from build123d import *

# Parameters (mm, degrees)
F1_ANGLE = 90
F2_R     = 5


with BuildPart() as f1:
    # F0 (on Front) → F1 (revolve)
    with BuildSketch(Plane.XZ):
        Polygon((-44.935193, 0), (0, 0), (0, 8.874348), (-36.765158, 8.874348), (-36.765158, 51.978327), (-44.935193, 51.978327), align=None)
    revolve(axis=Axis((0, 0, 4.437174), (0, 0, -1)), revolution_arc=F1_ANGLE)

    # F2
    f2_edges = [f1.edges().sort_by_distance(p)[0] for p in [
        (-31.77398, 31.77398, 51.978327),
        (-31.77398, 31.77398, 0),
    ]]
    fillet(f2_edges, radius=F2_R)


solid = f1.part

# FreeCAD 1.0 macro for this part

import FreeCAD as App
import Part
import Sketcher


def edges_at(feature, points):
    """Names of the edges that pass closest to the given points."""
    edges = feature.Shape.Edges
    near = lambda p: min(range(len(edges)), key=lambda i: edges[i].distToShape(Part.Vertex(*p))[0])
    return sorted({f"Edge{near(p) + 1}" for p in points})


def add_polygon(sketch, points):
    """Adds a closed chain of lines whose ends are joined by coincident constraints."""
    first, n = sketch.GeometryCount, len(points)
    for a, b in zip(points, points[1:] + points[:1]):
        sketch.addGeometry(Part.LineSegment(App.Vector(*a, 0), App.Vector(*b, 0)), False)
    for i in range(n):
        sketch.addConstraint(Sketcher.Constraint("Coincident", first + i, 2, first + (i + 1) % n, 1))

doc = App.newDocument("Part")
params = doc.addObject("Spreadsheet::Sheet", "Params")
for row, (alias, value) in enumerate([
    ("revolution_angle", "90 deg"),
    ("fillet_radius", "5 mm"),
], start=1):
    params.set(f"A{row}", alias)
    params.set(f"B{row}", "=" + value)
    params.setAlias(f"B{row}", alias)

body = doc.addObject("PartDesign::Body", "Body")

# Sketch on XZ plane
sketch1 = doc.addObject("Sketcher::SketchObject", "Sketch")
body.addObject(sketch1)
sketch1.AttachmentSupport = (doc.XZ_Plane, [""])
sketch1.MapMode = "FlatFace"
add_polygon(sketch1, [(-45, 0), (0, 0), (0, 9), (-37, 9), (-37, 52), (-45, 52)])  # lines 0-5
sketch1.addConstraint(Sketcher.Constraint("Horizontal", 0))
sketch1.addConstraint(Sketcher.Constraint("Vertical", 1))
sketch1.addConstraint(Sketcher.Constraint("Horizontal", 2))
sketch1.addConstraint(Sketcher.Constraint("Vertical", 3))
sketch1.addConstraint(Sketcher.Constraint("Horizontal", 4))
sketch1.addConstraint(Sketcher.Constraint("Vertical", 5))
sketch1.addConstraint(Sketcher.Constraint("Coincident", 0, 2, -1, 1))
sketch1.addConstraint(Sketcher.Constraint("DistanceY", 3, 1, 3, 2, 43.103979))
sketch1.addConstraint(Sketcher.Constraint("DistanceX", 0, 1, 0, 2, 44.935193))
sketch1.addConstraint(Sketcher.Constraint("DistanceX", 2, 2, 2, 1, 36.765158))
sketch1.addConstraint(Sketcher.Constraint("DistanceY", 1, 1, 1, 2, 8.874348))
revolution = doc.addObject("PartDesign::Revolution", "Revolution")
body.addObject(revolution)
revolution.Profile = sketch1
revolution.ReferenceAxis = (sketch1, ["V_Axis"])
revolution.setExpression("Angle", "Params.revolution_angle")
revolution.Reversed = True
doc.recompute()

fillet = doc.addObject("PartDesign::Fillet", "Fillet")
body.addObject(fillet)
fillet.Base = (revolution, edges_at(revolution, [(-31.774, 31.774, 51.978), (-31.774, 31.774, 0)]))
fillet.setExpression("Radius", "Params.fillet_radius")

doc.recompute()
